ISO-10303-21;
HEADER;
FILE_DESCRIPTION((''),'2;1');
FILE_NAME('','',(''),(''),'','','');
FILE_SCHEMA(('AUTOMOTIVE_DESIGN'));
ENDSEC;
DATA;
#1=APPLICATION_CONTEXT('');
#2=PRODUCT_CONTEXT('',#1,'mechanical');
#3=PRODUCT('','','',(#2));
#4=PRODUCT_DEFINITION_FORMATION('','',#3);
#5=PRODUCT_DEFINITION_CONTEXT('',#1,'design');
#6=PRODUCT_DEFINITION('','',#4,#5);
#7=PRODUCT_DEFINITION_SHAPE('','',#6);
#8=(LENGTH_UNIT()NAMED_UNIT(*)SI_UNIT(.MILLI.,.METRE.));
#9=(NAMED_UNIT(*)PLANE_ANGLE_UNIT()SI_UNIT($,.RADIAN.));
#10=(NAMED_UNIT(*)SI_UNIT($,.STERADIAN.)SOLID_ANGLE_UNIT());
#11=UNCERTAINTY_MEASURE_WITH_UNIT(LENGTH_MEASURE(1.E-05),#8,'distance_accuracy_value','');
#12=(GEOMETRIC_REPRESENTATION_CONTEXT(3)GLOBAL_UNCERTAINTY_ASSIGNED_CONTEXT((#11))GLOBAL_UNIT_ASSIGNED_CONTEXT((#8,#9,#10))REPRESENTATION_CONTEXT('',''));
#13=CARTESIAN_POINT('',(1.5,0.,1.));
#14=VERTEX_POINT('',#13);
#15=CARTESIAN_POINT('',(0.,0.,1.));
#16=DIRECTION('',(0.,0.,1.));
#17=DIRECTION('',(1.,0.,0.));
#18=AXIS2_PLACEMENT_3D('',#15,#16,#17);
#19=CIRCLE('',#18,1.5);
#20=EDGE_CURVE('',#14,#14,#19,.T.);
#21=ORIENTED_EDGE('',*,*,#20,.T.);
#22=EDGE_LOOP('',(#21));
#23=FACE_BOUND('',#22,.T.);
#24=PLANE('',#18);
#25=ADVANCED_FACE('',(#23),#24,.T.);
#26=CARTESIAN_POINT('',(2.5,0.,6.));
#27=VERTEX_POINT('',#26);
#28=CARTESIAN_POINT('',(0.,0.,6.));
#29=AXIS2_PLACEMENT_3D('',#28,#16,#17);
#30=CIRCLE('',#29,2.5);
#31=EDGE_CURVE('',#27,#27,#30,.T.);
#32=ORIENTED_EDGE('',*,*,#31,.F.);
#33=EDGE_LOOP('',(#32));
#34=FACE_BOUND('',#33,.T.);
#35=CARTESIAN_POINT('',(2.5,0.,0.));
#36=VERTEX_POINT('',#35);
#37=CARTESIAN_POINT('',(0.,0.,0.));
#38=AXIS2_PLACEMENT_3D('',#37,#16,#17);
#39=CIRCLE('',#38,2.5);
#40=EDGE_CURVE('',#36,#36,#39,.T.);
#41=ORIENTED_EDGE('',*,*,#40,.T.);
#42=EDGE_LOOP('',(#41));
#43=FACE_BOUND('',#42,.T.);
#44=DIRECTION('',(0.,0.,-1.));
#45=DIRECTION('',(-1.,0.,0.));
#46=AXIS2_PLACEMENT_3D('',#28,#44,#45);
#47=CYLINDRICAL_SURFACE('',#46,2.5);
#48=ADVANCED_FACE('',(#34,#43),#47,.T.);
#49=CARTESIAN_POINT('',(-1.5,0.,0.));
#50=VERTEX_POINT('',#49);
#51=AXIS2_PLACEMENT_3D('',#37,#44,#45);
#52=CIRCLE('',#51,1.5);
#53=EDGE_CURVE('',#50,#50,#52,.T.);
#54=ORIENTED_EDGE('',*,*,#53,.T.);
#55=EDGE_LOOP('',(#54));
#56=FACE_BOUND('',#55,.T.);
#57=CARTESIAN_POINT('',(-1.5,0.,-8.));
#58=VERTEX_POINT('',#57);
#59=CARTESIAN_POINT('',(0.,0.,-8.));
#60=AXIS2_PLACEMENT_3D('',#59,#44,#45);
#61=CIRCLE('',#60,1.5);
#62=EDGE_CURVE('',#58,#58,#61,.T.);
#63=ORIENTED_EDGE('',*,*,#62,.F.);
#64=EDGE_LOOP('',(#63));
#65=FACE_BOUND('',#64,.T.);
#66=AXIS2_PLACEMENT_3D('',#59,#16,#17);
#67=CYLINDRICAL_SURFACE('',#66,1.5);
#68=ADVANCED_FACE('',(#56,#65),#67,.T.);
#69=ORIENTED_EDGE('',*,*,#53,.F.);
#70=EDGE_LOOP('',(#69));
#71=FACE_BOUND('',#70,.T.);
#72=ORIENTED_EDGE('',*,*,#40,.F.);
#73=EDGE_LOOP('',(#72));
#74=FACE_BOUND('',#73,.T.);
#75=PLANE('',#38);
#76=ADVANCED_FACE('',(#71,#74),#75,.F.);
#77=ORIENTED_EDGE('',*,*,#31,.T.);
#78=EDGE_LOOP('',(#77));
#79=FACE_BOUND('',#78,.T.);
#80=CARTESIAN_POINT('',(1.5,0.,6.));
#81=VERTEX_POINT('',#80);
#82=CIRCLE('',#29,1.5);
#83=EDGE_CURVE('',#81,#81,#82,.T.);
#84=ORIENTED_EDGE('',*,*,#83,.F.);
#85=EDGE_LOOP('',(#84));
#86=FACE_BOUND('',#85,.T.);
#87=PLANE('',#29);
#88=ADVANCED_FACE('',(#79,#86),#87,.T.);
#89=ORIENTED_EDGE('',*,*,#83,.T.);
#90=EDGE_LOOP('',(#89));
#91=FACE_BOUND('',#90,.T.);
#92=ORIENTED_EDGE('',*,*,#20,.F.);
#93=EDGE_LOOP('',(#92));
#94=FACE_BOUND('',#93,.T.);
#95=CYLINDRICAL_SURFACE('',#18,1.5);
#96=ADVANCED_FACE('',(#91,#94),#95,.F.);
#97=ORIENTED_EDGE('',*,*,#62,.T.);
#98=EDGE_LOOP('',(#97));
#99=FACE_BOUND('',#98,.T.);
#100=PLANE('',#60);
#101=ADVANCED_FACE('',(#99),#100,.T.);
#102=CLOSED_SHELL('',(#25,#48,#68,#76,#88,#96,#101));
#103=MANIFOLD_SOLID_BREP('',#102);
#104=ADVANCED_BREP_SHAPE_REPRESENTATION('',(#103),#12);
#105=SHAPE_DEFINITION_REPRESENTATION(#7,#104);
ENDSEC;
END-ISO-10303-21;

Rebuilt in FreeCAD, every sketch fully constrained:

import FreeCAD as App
import Part
import Sketcher

doc = App.newDocument("Part")
body = doc.addObject("PartDesign::Body", "Body")

# Sketch on XY plane
sketch1 = body.newObject("Sketcher::SketchObject", "Sketch")
sketch1.AttachmentSupport = (doc.getObject("XY_Plane"), [""])
sketch1.MapMode = "FlatFace"
sketch1.addGeometry(Part.Circle(App.Vector(0, 0, 0), App.Vector(0, 0, 1), 2.5), False)
sketch1.addConstraint(Sketcher.Constraint("Coincident", 0, 3, -1, 1))
sketch1.addConstraint(Sketcher.Constraint("Diameter", 0, 5.0))
pad1 = body.newObject("PartDesign::Pad", "Pad")
pad1.Profile = sketch1
pad1.Length = 6

# Sketch on XY plane
sketch2 = body.newObject("Sketcher::SketchObject", "Sketch001")
sketch2.AttachmentSupport = (doc.getObject("XY_Plane"), [""])
sketch2.MapMode = "FlatFace"
sketch2.AttachmentOffset = App.Placement(App.Vector(0, 0, 6), App.Rotation())
sketch2.addGeometry(Part.Circle(App.Vector(0, 0, 0), App.Vector(0, 0, 1), 1.5), False)
sketch2.addConstraint(Sketcher.Constraint("Coincident", 0, 3, -1, 1))
sketch2.addConstraint(Sketcher.Constraint("Diameter", 0, 3.0))
pocket1 = body.newObject("PartDesign::Pocket", "Pocket")
pocket1.Profile = sketch2
pocket1.Length = 5

# Sketch on XY plane
sketch3 = body.newObject("Sketcher::SketchObject", "Sketch002")
sketch3.AttachmentSupport = (doc.getObject("XY_Plane"), [""])
sketch3.MapMode = "FlatFace"
sketch3.addGeometry(Part.Circle(App.Vector(0, 0, 0), App.Vector(0, 0, 1), 1.5), False)
sketch3.addConstraint(Sketcher.Constraint("Coincident", 0, 3, -1, 1))
sketch3.addConstraint(Sketcher.Constraint("Diameter", 0, 3.0))
pad2 = body.newObject("PartDesign::Pad", "Pad001")
pad2.Profile = sketch3
pad2.Length = 8
pad2.Reversed = True

doc.recompute()
